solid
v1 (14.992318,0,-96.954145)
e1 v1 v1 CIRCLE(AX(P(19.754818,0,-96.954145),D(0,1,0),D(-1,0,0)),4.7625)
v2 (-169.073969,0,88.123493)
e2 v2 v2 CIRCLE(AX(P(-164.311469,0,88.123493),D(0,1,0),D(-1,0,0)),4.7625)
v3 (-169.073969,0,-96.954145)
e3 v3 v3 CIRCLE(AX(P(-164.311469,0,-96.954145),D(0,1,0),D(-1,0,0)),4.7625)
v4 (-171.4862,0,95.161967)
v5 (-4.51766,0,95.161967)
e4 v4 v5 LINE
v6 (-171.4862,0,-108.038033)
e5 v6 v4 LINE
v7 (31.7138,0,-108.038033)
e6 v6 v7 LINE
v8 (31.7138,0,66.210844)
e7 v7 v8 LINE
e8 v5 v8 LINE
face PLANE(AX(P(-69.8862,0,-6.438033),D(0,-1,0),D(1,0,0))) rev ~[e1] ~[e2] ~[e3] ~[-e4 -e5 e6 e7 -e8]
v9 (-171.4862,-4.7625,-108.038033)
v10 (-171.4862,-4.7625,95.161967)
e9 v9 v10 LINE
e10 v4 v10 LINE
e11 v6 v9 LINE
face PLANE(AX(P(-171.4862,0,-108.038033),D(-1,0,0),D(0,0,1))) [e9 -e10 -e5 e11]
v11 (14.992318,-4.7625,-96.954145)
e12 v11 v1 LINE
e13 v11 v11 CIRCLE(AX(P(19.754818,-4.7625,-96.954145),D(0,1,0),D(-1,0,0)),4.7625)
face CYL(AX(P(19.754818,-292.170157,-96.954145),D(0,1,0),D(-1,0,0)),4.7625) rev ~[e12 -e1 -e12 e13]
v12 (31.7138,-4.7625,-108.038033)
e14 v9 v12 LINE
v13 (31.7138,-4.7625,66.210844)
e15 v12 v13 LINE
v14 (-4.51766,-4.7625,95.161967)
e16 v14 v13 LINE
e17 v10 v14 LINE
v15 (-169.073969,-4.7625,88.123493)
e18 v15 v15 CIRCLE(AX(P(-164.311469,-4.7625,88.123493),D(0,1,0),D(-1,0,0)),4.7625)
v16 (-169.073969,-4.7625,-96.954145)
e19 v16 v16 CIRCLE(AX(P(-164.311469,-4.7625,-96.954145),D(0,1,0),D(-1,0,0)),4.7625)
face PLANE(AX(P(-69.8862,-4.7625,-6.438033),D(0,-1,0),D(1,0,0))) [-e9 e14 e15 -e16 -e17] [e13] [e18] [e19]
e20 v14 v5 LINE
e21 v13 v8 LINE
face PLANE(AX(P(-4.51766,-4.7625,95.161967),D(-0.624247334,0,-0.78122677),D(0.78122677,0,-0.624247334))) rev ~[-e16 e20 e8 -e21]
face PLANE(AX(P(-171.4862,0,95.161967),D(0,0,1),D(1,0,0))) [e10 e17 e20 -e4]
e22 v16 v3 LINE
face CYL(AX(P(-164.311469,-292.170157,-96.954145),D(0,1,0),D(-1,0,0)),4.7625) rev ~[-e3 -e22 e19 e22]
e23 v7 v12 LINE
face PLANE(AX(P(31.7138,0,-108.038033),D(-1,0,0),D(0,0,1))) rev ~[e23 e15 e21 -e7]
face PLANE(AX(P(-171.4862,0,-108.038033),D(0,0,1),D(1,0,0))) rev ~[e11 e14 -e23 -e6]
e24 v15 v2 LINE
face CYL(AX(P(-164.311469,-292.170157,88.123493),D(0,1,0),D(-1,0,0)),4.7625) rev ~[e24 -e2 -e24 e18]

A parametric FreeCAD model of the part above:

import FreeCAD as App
import Part
import Sketcher
from FreeCAD import Vector
Q = App.Units.Quantity


def add_polygon(sketch, points):
    """Adds a closed chain of lines whose ends are joined by coincident constraints."""
    first, n = sketch.GeometryCount, len(points)
    for a, b in zip(points, points[1:] + points[:1]):
        sketch.addGeometry(Part.LineSegment(App.Vector(*a, 0), App.Vector(*b, 0)), False)
    for i in range(n):
        sketch.addConstraint(Sketcher.Constraint("Coincident", first + i, 2, first + (i + 1) % n, 1))

doc = App.newDocument("Part")
params = doc.addObject("Spreadsheet::Sheet", "Params")
for row, (alias, value) in enumerate([
    ("sketch1_width", "8 in"),
    ("pad1_length", "0.1875 in"),
    ("pocket1_length", "1 in"),
    ("sketch3_diameter", "0.375 in"),
    ("hole_diameter", "0.375 in"),
], start=1):
    params.set(f"A{row}", alias)
    params.set(f"B{row}", "=" + value)
    params.setAlias(f"B{row}", alias)

body = doc.addObject("PartDesign::Body", "Body")

# Sketch on XZ plane
sketch1 = body.newObject("Sketcher::SketchObject", "Sketch")
sketch1.AttachmentSupport = (doc.getObject("XZ_Plane"), [""])
sketch1.MapMode = "FlatFace"
add_polygon(sketch1, [(-171, 95), (-171, -108), (32, -108), (32, 95)])  # lines 0-3
sketch1.addConstraint([
    Sketcher.Constraint("Vertical", 0),
    Sketcher.Constraint("Horizontal", 1),
    Sketcher.Constraint("Vertical", 2),
    Sketcher.Constraint("Horizontal", 3),
    Sketcher.Constraint("Equal", 3, 0),
    Sketcher.Constraint("DistanceX", 1, 1, 1, 2, Q("8 in")),
    Sketcher.Constraint("DistanceX", 0, 2, -1, 1, 171.4862),
    Sketcher.Constraint("DistanceY", 0, 2, -1, 1, 108.038033),
])
sketch1.setExpression("Constraints[9]", "Params.sketch1_width")
pad1 = body.newObject("PartDesign::Pad", "Pad")
pad1.Profile = sketch1
pad1.setExpression("Length", "Params.pad1_length")

# Sketch on XZ plane
sketch2 = body.newObject("Sketcher::SketchObject", "Sketch001")
sketch2.AttachmentSupport = (doc.getObject("XZ_Plane"), [""])
sketch2.MapMode = "FlatFace"
sketch2.AttachmentOffset = App.Placement(Vector(0, 0, 0.1875 * 25.4), App.Rotation())
add_polygon(sketch2, [(32, 95), (-5, 95), (32, 66)])  # lines 0-2
sketch2.addConstraint([
    Sketcher.Constraint("Horizontal", 0),
    Sketcher.Constraint("Vertical", 2),
    Sketcher.Constraint("DistanceX", 0, 2, 0, 1, 36.23146),
    Sketcher.Constraint("DistanceX", -1, 1, 1, 2, 31.7138),
    Sketcher.Constraint("DistanceY", 2, 1, 2, 2, 28.951123),
    Sketcher.Constraint("DistanceY", -1, 1, 0, 2, 95.161967),
])
pocket1 = body.newObject("PartDesign::Pocket", "Pocket")
pocket1.Profile = sketch2
pocket1.setExpression("Length", "Params.pocket1_length")

# Sketch on XZ plane
sketch3 = body.newObject("Sketcher::SketchObject", "Sketch002")
sketch3.AttachmentSupport = (doc.getObject("XZ_Plane"), [""])
sketch3.MapMode = "FlatFace"
sketch3.AttachmentOffset = App.Placement(Vector(0, 0, 0.1875 * 25.4), App.Rotation())
sketch3.addGeometry([
    Part.Circle(Vector(-164.3, 88.1, 0), Vector(0, 0, 1), 4.8),
    Part.Circle(Vector(-164.3, -97, 0), Vector(0, 0, 1), 4.8),
    Part.Circle(Vector(19.8, -97, 0), Vector(0, 0, 1), 4.8),
], False)
sketch3.addConstraint([
    Sketcher.Constraint("Equal", 0, 1),
    Sketcher.Constraint("Equal", 1, 2),
    Sketcher.Constraint("Horizontal", 1, 3, 2, 3),
    Sketcher.Constraint("Vertical", 0, 3, 1, 3),
    Sketcher.Constraint("Diameter", 0, Q("0.375 in")),
    Sketcher.Constraint("DistanceX", 0, 3, -1, 1, 164.311469),
    Sketcher.Constraint("DistanceX", -1, 1, 2, 3, 19.754818),
    Sketcher.Constraint("DistanceY", -1, 1, 0, 3, 88.123493),
    Sketcher.Constraint("DistanceY", 1, 3, -1, 1, 96.954145),
])
sketch3.setExpression("Constraints[4]", "Params.sketch3_diameter")
doc.recompute()
hole = body.newObject("PartDesign::Hole", "Hole")
hole.Profile = sketch3
hole.ThreadType = "None"
hole.setExpression("Diameter", "Params.hole_diameter")
hole.DepthType = "ThroughAll"

doc.recompute()
